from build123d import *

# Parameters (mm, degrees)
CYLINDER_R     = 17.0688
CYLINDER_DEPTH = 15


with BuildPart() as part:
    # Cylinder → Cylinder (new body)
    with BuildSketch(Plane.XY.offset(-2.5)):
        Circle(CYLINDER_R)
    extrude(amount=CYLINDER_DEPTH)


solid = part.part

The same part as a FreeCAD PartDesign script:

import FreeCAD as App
import Part
import Sketcher
Q = App.Units.Quantity

doc = App.newDocument("Part")
params = doc.addObject("Spreadsheet::Sheet", "Params")
for row, (alias, value) in enumerate([
    ("pad1_length", "15 mm"),
], start=1):
    params.set(f"A{row}", alias)
    params.set(f"B{row}", "=" + value)
    params.setAlias(f"B{row}", alias)

body = doc.addObject("PartDesign::Body", "Body")

# Sketch on XY plane
sketch1 = body.newObject("Sketcher::SketchObject", "Sketch")
sketch1.AttachmentSupport = (doc.getObject("XY_Plane"), [""])
sketch1.MapMode = "FlatFace"
sketch1.AttachmentOffset = App.Placement(App.Vector(0, 0, -2.5), App.Rotation())
sketch1.addGeometry(Part.Circle(App.Vector(0, 0, 0), App.Vector(0, 0, 1), 17), False)
sketch1.addConstraint([
    Sketcher.Constraint("Coincident", 0, 3, -1, 1),
    Sketcher.Constraint("Diameter", 0, Q("34.1376 mm")),
])
pad1 = body.newObject("PartDesign::Pad", "Pad")
pad1.Profile = sketch1
pad1.setExpression("Length", "Params.pad1_length")

doc.recompute()
